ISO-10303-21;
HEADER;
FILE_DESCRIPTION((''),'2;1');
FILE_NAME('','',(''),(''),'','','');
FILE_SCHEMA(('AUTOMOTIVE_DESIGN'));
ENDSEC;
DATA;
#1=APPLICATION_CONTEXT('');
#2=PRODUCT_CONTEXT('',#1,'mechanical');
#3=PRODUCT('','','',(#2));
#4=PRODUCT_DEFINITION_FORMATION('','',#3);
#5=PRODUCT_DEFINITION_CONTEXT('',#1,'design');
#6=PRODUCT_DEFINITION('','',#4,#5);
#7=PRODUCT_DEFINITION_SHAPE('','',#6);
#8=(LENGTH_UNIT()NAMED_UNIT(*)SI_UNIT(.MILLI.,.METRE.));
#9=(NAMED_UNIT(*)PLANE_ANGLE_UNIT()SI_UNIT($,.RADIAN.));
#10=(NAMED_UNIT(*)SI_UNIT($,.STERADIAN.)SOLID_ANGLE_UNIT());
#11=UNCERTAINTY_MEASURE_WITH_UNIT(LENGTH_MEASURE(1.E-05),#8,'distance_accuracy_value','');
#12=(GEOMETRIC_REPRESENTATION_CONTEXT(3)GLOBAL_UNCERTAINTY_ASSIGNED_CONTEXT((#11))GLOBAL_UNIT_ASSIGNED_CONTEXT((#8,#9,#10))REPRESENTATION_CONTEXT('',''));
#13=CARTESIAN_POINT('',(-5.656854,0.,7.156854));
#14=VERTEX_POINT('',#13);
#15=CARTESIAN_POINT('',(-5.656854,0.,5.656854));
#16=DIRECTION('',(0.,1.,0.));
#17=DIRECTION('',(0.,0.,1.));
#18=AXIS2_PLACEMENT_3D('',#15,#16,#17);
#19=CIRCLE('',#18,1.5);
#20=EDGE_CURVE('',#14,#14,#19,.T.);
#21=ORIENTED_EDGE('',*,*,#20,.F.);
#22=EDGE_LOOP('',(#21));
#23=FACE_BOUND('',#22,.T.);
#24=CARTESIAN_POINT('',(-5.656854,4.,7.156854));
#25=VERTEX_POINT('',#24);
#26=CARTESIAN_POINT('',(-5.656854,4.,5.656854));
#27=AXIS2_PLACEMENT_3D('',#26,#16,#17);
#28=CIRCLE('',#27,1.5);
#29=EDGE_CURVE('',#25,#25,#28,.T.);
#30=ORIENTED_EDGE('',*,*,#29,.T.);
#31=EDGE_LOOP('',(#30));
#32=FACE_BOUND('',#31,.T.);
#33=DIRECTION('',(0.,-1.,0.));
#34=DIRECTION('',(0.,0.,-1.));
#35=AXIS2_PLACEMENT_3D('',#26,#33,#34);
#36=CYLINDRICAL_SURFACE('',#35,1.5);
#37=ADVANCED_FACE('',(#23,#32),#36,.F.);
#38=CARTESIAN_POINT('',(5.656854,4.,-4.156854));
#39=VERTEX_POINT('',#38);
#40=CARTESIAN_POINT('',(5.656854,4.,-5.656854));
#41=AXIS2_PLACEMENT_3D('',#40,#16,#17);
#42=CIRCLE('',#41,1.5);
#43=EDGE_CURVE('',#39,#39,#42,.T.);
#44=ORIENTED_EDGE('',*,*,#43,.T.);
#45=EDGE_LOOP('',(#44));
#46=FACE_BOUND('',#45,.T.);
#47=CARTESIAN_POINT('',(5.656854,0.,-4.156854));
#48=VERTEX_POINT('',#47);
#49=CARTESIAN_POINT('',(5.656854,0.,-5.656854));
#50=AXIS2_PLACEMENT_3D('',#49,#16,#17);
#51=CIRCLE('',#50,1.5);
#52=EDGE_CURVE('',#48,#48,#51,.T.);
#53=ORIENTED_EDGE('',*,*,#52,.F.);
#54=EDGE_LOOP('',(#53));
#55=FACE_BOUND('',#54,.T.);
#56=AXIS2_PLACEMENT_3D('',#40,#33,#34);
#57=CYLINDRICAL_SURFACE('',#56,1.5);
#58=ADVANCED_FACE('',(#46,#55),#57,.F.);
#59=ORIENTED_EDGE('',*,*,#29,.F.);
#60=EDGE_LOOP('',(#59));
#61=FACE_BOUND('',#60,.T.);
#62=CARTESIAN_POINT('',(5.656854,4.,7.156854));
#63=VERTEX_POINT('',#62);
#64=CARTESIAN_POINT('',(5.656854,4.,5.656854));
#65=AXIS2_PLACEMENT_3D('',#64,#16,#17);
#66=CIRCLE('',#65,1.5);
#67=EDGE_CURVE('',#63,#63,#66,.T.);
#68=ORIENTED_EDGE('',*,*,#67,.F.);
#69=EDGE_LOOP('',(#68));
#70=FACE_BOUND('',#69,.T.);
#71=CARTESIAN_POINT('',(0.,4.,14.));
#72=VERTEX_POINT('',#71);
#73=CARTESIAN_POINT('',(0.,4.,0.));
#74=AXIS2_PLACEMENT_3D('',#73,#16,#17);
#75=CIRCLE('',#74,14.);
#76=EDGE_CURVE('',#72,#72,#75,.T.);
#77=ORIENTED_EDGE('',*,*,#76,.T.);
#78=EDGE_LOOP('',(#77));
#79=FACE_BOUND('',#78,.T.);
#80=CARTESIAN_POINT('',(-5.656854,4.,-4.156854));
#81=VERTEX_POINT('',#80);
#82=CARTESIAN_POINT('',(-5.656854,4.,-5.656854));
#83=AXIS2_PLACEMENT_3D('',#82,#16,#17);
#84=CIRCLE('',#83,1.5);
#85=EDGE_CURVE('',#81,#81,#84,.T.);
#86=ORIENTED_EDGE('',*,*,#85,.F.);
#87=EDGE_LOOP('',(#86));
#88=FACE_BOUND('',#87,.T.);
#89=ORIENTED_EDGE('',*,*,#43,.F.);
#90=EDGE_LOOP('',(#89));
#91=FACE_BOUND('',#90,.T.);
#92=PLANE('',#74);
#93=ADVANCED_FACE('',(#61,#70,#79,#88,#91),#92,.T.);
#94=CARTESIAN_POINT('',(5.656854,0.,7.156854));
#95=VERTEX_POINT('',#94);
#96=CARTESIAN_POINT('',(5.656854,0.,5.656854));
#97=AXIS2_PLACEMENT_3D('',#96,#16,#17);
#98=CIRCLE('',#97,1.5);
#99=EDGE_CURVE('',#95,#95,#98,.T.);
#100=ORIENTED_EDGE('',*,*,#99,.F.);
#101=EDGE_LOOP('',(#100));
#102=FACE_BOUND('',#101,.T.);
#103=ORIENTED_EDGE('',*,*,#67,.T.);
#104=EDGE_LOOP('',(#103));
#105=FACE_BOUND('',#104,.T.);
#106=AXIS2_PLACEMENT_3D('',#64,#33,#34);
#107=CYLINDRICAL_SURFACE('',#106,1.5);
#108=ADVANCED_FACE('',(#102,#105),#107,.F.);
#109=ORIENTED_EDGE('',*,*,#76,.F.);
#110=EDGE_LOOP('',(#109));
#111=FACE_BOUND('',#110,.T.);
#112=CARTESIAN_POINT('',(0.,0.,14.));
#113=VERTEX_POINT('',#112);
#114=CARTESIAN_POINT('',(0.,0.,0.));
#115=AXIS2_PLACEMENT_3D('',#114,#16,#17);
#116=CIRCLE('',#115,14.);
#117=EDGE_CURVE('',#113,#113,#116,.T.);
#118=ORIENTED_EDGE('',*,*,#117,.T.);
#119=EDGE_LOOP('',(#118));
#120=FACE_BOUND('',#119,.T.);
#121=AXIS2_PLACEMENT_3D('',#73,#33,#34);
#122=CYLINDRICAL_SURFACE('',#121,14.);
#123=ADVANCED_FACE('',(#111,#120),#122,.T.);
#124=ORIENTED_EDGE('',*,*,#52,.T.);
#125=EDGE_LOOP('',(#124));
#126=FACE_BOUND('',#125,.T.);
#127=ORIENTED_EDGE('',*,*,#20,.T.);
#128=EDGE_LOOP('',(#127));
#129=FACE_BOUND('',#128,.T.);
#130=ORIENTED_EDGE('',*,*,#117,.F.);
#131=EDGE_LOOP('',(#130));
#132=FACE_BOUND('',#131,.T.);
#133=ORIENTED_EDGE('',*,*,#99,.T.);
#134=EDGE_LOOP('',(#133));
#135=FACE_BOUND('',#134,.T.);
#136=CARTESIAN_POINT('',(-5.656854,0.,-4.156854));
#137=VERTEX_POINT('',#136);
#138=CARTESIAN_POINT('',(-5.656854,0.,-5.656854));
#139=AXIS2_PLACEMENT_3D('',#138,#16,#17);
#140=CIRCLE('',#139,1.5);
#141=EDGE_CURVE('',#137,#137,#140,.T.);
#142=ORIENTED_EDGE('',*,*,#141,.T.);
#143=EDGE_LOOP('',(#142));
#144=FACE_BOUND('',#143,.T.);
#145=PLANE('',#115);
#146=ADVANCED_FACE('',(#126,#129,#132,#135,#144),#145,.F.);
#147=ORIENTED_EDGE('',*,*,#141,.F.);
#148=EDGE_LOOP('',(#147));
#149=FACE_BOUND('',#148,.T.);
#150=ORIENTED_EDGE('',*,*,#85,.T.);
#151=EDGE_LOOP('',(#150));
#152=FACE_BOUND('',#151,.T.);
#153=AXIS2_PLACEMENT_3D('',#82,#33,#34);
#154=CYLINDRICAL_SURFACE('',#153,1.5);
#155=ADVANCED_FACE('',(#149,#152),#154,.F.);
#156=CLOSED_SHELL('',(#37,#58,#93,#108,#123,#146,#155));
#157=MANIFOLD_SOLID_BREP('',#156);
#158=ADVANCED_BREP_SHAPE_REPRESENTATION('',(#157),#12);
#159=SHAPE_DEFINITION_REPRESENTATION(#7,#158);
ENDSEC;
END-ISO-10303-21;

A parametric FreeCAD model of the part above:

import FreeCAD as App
import Part
import Sketcher
Q = App.Units.Quantity

doc = App.newDocument("Part")
body = doc.addObject("PartDesign::Body", "Body")

# Sketch on XZ plane
sketch1 = doc.addObject("Sketcher::SketchObject", "Sketch")
body.addObject(sketch1)
sketch1.AttachmentSupport = (doc.XZ_Plane, [""])
sketch1.MapMode = "FlatFace"
sketch1.addGeometry([
    Part.Circle(App.Vector(0, 0, 0), App.Vector(0, 0, 1), 14),  # 0
    Part.Circle(App.Vector(-5.7, 5.7, 0), App.Vector(0, 0, 1), 1.5),  # 1
    Part.Circle(App.Vector(5.7, 5.7, 0), App.Vector(0, 0, 1), 1.5),  # 2
    Part.Circle(App.Vector(-5.7, -5.7, 0), App.Vector(0, 0, 1), 1.5),  # 3
    Part.Circle(App.Vector(5.7, -5.7, 0), App.Vector(0, 0, 1), 1.5),  # 4
], False)
sketch1.addConstraint([
    Sketcher.Constraint("Coincident", 0, 3, -1, 1),
    Sketcher.Constraint("Equal", 1, 2),
    Sketcher.Constraint("Equal", 2, 3),
    Sketcher.Constraint("Equal", 3, 4),
    Sketcher.Constraint("Symmetric", 2, 3, 3, 3, -1, 1),
    Sketcher.Constraint("Symmetric", 1, 3, 4, 3, -1, 1),
    Sketcher.Constraint("Symmetric", 1, 3, 2, 3, -2),
    Sketcher.Constraint("Diameter", 0, Q("28 mm")),
    Sketcher.Constraint("Diameter", 1, Q("3 mm")),
    Sketcher.Constraint("DistanceX", 1, 3, 2, 3, Q("11.313708 mm")),
    Sketcher.Constraint("DistanceY", 3, 3, 1, 3, Q("11.313708 mm")),
])
pad1 = doc.addObject("PartDesign::Pad", "Pad")
body.addObject(pad1)
pad1.Profile = sketch1
pad1.Length = 4
pad1.Reversed = True

doc.recompute()
